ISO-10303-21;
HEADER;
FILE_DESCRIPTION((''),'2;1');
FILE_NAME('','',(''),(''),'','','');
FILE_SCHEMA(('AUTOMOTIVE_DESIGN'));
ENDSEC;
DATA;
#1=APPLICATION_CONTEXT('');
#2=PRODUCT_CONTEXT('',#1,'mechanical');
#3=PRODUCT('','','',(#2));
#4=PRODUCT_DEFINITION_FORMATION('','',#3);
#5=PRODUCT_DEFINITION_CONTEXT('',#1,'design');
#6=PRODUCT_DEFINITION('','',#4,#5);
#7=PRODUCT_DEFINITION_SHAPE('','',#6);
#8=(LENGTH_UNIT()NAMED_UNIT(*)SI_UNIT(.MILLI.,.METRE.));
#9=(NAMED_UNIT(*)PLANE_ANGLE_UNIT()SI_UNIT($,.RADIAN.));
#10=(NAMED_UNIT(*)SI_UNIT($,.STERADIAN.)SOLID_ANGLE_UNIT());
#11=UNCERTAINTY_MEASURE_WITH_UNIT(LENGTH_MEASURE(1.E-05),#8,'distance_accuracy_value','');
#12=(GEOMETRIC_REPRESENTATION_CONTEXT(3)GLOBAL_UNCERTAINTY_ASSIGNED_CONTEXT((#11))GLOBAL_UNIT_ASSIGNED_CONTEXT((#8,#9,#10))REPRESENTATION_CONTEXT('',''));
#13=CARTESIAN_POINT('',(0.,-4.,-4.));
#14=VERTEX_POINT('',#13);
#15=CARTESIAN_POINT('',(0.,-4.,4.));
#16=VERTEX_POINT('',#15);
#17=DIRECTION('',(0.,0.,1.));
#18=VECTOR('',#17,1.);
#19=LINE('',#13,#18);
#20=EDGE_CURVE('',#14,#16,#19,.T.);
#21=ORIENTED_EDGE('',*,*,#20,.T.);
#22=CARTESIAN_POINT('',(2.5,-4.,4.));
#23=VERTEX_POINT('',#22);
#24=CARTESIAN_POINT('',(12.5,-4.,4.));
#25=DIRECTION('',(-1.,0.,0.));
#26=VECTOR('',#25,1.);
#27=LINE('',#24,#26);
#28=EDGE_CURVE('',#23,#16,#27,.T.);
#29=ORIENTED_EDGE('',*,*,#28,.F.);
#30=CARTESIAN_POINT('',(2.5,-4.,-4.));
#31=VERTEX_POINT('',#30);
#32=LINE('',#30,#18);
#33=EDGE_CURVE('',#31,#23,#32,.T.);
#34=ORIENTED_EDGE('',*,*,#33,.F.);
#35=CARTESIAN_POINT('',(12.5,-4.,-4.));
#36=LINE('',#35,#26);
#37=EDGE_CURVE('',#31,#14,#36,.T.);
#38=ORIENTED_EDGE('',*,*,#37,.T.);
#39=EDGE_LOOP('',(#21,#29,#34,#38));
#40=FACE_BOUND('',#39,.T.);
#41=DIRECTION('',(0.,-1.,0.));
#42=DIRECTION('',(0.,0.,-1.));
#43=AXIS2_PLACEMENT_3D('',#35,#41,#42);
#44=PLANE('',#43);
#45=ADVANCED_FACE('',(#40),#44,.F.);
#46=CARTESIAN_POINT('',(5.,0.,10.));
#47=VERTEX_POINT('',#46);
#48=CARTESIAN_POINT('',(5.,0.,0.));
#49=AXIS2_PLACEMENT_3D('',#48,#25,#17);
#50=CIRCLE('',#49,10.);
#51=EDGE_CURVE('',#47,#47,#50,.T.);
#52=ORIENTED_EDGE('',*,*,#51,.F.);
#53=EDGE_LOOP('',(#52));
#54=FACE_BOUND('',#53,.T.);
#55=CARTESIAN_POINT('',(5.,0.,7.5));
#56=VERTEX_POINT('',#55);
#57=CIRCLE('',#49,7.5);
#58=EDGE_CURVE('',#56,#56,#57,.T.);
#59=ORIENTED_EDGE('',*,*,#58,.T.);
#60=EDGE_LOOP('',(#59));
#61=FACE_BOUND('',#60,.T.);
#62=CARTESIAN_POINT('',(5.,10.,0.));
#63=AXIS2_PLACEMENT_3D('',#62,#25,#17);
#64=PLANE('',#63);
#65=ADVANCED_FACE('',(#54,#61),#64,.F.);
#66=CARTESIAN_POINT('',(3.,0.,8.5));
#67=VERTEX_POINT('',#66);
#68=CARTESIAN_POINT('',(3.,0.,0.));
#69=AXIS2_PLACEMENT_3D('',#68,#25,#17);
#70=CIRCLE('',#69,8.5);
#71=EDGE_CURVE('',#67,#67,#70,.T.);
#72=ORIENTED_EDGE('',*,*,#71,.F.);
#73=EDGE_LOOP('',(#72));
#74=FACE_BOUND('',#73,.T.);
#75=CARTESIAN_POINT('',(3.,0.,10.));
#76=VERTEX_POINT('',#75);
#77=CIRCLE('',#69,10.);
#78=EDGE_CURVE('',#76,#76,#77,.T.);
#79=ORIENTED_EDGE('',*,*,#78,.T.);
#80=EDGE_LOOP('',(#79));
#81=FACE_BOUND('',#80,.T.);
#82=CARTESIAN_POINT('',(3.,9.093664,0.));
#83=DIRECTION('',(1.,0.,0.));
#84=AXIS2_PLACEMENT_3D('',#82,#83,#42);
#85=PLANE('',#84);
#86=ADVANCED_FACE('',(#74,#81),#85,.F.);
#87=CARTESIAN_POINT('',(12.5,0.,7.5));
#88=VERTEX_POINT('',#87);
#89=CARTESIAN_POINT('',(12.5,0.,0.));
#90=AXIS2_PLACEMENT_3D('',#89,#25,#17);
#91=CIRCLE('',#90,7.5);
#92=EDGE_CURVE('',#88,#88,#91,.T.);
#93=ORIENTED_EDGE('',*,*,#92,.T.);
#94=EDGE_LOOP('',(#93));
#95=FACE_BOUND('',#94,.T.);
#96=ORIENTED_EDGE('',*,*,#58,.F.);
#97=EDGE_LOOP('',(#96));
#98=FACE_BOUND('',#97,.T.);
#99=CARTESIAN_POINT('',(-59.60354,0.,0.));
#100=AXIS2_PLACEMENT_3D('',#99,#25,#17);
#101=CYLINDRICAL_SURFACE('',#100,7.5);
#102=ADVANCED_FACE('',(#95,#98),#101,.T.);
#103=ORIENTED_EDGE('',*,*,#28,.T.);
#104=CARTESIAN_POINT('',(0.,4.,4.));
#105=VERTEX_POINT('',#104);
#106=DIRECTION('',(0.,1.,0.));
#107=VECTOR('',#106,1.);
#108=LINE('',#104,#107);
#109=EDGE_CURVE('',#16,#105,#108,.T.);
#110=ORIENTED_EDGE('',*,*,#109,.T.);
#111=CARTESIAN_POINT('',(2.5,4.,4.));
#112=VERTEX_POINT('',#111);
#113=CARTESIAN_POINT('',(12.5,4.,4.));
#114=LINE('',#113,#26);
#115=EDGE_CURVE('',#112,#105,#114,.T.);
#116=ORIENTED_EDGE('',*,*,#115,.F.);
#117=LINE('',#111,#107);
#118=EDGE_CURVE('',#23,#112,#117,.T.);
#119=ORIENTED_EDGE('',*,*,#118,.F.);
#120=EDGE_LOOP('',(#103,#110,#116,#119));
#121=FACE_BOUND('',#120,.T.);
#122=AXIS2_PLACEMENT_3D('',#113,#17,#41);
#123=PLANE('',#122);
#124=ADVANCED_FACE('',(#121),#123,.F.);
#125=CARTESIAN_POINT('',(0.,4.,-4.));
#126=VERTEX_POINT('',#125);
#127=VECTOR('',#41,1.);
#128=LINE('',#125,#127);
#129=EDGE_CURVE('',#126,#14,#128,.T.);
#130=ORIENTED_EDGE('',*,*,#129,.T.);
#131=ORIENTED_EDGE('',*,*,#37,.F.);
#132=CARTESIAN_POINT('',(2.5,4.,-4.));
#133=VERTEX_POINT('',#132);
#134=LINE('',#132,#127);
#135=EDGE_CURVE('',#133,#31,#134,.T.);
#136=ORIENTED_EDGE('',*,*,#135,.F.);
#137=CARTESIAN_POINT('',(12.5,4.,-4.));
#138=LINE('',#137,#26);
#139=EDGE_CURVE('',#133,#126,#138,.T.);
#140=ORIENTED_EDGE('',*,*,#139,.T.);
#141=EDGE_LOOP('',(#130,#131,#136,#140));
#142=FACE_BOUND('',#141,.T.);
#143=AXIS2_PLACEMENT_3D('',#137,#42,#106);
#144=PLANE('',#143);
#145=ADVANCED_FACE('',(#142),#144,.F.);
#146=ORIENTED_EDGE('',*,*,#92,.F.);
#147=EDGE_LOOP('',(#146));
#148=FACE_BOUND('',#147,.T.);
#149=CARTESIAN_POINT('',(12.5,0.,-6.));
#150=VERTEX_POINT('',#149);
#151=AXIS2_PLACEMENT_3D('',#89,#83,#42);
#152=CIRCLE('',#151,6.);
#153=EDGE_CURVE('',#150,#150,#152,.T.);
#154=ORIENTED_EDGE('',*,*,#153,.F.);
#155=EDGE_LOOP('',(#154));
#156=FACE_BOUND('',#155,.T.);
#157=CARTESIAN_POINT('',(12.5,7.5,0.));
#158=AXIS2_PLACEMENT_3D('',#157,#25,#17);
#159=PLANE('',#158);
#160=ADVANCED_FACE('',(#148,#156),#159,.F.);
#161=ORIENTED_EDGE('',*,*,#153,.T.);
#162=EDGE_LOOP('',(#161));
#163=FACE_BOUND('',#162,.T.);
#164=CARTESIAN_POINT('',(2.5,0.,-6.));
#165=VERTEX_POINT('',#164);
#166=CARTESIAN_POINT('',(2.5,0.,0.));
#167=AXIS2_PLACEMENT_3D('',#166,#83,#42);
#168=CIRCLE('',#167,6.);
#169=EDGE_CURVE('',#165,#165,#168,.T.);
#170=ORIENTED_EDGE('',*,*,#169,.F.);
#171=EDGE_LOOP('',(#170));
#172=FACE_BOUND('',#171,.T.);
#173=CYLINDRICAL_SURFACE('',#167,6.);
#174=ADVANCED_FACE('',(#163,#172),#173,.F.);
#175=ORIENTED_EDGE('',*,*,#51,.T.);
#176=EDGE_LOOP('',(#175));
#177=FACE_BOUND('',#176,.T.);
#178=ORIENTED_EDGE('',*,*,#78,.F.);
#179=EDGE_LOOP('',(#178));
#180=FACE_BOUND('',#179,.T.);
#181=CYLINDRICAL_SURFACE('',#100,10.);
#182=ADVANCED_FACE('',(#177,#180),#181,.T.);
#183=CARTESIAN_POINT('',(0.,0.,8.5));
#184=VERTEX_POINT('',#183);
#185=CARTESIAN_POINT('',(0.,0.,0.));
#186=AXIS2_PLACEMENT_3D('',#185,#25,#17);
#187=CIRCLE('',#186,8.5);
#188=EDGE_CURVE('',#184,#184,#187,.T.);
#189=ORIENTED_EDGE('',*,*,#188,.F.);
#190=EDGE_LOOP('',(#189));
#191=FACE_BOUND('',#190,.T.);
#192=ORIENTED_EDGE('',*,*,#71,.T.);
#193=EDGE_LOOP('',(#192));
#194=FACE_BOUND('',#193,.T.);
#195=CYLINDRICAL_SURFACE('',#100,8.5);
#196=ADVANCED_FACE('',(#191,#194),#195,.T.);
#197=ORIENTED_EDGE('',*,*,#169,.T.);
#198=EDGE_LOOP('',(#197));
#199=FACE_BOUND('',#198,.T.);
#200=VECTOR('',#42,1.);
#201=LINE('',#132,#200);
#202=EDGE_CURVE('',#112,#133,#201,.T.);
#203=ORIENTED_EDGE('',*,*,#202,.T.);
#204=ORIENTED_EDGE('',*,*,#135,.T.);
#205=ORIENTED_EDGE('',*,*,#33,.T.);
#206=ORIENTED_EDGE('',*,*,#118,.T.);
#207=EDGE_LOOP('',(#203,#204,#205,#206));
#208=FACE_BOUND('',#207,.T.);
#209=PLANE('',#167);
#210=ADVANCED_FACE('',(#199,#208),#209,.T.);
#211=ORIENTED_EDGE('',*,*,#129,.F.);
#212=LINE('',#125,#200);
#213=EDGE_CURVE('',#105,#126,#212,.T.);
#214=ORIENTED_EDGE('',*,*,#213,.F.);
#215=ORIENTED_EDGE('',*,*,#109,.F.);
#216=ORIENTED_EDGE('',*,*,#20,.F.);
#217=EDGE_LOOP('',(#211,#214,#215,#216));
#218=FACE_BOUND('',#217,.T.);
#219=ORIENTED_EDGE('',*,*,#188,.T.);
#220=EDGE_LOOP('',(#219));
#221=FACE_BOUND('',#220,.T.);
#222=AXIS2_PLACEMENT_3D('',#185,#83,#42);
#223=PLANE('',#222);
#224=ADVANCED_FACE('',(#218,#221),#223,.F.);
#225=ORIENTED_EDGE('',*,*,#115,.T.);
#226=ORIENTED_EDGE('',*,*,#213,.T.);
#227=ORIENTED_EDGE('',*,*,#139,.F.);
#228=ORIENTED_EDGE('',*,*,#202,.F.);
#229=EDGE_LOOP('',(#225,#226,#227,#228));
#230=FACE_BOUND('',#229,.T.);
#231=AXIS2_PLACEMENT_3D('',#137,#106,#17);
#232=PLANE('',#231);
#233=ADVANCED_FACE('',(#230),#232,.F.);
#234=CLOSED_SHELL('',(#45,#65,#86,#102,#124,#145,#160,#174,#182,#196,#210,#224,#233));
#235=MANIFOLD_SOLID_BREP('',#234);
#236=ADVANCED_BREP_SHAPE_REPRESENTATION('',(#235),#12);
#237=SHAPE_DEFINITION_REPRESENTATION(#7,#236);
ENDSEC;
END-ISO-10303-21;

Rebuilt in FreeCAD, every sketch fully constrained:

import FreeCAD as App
import Part
import Sketcher
from FreeCAD import Vector

doc = App.newDocument("Part")
body = doc.addObject("PartDesign::Body", "Body")

sketch1 = body.newObject("Sketcher::SketchObject", "Sketch")
sketch1.AttachmentSupport = (doc.getObject("XY_Plane"), [""])
sketch1.MapMode = "FlatFace"
sketch1.addGeometry(Part.LineSegment(Vector(0, 8.5, 0), Vector(0, 0, 0)), False)
sketch1.addGeometry(Part.LineSegment(Vector(0, 0, 0), Vector(12.5, 0, 0)), False)
sketch1.addGeometry(Part.LineSegment(Vector(12.5, 0, 0), Vector(12.5, 7.5, 0)), False)
sketch1.addGeometry(Part.LineSegment(Vector(12.5, 7.5, 0), Vector(5, 7.5, 0)), False)
sketch1.addGeometry(Part.LineSegment(Vector(5, 7.5, 0), Vector(5, 10, 0)), False)
sketch1.addGeometry(Part.LineSegment(Vector(5, 10, 0), Vector(3, 10, 0)), False)
sketch1.addGeometry(Part.LineSegment(Vector(3, 10, 0), Vector(3, 8.5, 0)), False)
sketch1.addGeometry(Part.LineSegment(Vector(3, 8.5, 0), Vector(0, 8.5, 0)), False)
sketch1.addConstraint(Sketcher.Constraint("Coincident", 0, 2, 1, 1))
sketch1.addConstraint(Sketcher.Constraint("Coincident", 1, 2, 2, 1))
sketch1.addConstraint(Sketcher.Constraint("Coincident", 2, 2, 3, 1))
sketch1.addConstraint(Sketcher.Constraint("Coincident", 3, 2, 4, 1))
sketch1.addConstraint(Sketcher.Constraint("Coincident", 4, 2, 5, 1))
sketch1.addConstraint(Sketcher.Constraint("Coincident", 5, 2, 6, 1))
sketch1.addConstraint(Sketcher.Constraint("Coincident", 6, 2, 7, 1))
sketch1.addConstraint(Sketcher.Constraint("Coincident", 7, 2, 0, 1))
sketch1.addConstraint(Sketcher.Constraint("Vertical", 0))
sketch1.addConstraint(Sketcher.Constraint("Horizontal", 1))
sketch1.addConstraint(Sketcher.Constraint("Vertical", 2))
sketch1.addConstraint(Sketcher.Constraint("Horizontal", 3))
sketch1.addConstraint(Sketcher.Constraint("Vertical", 4))
sketch1.addConstraint(Sketcher.Constraint("Horizontal", 5))
sketch1.addConstraint(Sketcher.Constraint("Vertical", 6))
sketch1.addConstraint(Sketcher.Constraint("Horizontal", 7))
sketch1.addConstraint(Sketcher.Constraint("Coincident", 0, 2, -1, 1))
sketch1.addConstraint(Sketcher.Constraint("Equal", 3, 2))
sketch1.addConstraint(Sketcher.Constraint("DistanceX", 5, 2, 5, 1, 2.0))
sketch1.addConstraint(Sketcher.Constraint("DistanceX", 7, 2, 7, 1, 3.0))
sketch1.addConstraint(Sketcher.Constraint("DistanceX", 1, 1, 1, 2, 12.5))
sketch1.addConstraint(Sketcher.Constraint("DistanceY", 0, 2, 0, 1, 8.5))
sketch1.addConstraint(Sketcher.Constraint("DistanceY", 4, 1, 4, 2, 2.5))
revolution = body.newObject("PartDesign::Revolution", "Revolution")
revolution.Profile = sketch1
revolution.ReferenceAxis = (sketch1, ["H_Axis"])
revolution.Angle = 360

sketch2 = body.newObject("Sketcher::SketchObject", "Sketch001")
sketch2.AttachmentSupport = (doc.getObject("YZ_Plane"), [""])
sketch2.MapMode = "FlatFace"
sketch2.addGeometry(Part.LineSegment(Vector(4, -4, 0), Vector(-4, -4, 0)), False)
sketch2.addGeometry(Part.LineSegment(Vector(-4, -4, 0), Vector(-4, 4, 0)), False)
sketch2.addGeometry(Part.LineSegment(Vector(-4, 4, 0), Vector(4, 4, 0)), False)
sketch2.addGeometry(Part.LineSegment(Vector(4, 4, 0), Vector(4, -4, 0)), False)
sketch2.addConstraint(Sketcher.Constraint("Coincident", 0, 2, 1, 1))
sketch2.addConstraint(Sketcher.Constraint("Coincident", 1, 2, 2, 1))
sketch2.addConstraint(Sketcher.Constraint("Coincident", 2, 2, 3, 1))
sketch2.addConstraint(Sketcher.Constraint("Coincident", 3, 2, 0, 1))
sketch2.addConstraint(Sketcher.Constraint("Horizontal", 0))
sketch2.addConstraint(Sketcher.Constraint("Vertical", 1))
sketch2.addConstraint(Sketcher.Constraint("Horizontal", 2))
sketch2.addConstraint(Sketcher.Constraint("Vertical", 3))
sketch2.addConstraint(Sketcher.Constraint("Symmetric", 0, 2, 2, 2, -1, 1))
sketch2.addConstraint(Sketcher.Constraint("Equal", 2, 1))
sketch2.addConstraint(Sketcher.Constraint("DistanceX", 0, 2, 0, 1, 8.0))
pocket1 = body.newObject("PartDesign::Pocket", "Pocket")
pocket1.Profile = sketch2
pocket1.Type = "ThroughAll"
pocket1.Reversed = True

sketch3 = body.newObject("Sketcher::SketchObject", "Sketch002")
sketch3.AttachmentSupport = (doc.getObject("YZ_Plane"), [""])
sketch3.MapMode = "FlatFace"
sketch3.AttachmentOffset = App.Placement(Vector(0, 0, 12.5), App.Rotation())
sketch3.addGeometry(Part.Circle(Vector(0, 0, 0), Vector(0, 0, 1), 6), False)
sketch3.addConstraint(Sketcher.Constraint("Coincident", 0, 3, -1, 1))
sketch3.addConstraint(Sketcher.Constraint("Diameter", 0, 12.0))
pocket2 = body.newObject("PartDesign::Pocket", "Pocket001")
pocket2.Profile = sketch3
pocket2.Length = 10

doc.recompute()
